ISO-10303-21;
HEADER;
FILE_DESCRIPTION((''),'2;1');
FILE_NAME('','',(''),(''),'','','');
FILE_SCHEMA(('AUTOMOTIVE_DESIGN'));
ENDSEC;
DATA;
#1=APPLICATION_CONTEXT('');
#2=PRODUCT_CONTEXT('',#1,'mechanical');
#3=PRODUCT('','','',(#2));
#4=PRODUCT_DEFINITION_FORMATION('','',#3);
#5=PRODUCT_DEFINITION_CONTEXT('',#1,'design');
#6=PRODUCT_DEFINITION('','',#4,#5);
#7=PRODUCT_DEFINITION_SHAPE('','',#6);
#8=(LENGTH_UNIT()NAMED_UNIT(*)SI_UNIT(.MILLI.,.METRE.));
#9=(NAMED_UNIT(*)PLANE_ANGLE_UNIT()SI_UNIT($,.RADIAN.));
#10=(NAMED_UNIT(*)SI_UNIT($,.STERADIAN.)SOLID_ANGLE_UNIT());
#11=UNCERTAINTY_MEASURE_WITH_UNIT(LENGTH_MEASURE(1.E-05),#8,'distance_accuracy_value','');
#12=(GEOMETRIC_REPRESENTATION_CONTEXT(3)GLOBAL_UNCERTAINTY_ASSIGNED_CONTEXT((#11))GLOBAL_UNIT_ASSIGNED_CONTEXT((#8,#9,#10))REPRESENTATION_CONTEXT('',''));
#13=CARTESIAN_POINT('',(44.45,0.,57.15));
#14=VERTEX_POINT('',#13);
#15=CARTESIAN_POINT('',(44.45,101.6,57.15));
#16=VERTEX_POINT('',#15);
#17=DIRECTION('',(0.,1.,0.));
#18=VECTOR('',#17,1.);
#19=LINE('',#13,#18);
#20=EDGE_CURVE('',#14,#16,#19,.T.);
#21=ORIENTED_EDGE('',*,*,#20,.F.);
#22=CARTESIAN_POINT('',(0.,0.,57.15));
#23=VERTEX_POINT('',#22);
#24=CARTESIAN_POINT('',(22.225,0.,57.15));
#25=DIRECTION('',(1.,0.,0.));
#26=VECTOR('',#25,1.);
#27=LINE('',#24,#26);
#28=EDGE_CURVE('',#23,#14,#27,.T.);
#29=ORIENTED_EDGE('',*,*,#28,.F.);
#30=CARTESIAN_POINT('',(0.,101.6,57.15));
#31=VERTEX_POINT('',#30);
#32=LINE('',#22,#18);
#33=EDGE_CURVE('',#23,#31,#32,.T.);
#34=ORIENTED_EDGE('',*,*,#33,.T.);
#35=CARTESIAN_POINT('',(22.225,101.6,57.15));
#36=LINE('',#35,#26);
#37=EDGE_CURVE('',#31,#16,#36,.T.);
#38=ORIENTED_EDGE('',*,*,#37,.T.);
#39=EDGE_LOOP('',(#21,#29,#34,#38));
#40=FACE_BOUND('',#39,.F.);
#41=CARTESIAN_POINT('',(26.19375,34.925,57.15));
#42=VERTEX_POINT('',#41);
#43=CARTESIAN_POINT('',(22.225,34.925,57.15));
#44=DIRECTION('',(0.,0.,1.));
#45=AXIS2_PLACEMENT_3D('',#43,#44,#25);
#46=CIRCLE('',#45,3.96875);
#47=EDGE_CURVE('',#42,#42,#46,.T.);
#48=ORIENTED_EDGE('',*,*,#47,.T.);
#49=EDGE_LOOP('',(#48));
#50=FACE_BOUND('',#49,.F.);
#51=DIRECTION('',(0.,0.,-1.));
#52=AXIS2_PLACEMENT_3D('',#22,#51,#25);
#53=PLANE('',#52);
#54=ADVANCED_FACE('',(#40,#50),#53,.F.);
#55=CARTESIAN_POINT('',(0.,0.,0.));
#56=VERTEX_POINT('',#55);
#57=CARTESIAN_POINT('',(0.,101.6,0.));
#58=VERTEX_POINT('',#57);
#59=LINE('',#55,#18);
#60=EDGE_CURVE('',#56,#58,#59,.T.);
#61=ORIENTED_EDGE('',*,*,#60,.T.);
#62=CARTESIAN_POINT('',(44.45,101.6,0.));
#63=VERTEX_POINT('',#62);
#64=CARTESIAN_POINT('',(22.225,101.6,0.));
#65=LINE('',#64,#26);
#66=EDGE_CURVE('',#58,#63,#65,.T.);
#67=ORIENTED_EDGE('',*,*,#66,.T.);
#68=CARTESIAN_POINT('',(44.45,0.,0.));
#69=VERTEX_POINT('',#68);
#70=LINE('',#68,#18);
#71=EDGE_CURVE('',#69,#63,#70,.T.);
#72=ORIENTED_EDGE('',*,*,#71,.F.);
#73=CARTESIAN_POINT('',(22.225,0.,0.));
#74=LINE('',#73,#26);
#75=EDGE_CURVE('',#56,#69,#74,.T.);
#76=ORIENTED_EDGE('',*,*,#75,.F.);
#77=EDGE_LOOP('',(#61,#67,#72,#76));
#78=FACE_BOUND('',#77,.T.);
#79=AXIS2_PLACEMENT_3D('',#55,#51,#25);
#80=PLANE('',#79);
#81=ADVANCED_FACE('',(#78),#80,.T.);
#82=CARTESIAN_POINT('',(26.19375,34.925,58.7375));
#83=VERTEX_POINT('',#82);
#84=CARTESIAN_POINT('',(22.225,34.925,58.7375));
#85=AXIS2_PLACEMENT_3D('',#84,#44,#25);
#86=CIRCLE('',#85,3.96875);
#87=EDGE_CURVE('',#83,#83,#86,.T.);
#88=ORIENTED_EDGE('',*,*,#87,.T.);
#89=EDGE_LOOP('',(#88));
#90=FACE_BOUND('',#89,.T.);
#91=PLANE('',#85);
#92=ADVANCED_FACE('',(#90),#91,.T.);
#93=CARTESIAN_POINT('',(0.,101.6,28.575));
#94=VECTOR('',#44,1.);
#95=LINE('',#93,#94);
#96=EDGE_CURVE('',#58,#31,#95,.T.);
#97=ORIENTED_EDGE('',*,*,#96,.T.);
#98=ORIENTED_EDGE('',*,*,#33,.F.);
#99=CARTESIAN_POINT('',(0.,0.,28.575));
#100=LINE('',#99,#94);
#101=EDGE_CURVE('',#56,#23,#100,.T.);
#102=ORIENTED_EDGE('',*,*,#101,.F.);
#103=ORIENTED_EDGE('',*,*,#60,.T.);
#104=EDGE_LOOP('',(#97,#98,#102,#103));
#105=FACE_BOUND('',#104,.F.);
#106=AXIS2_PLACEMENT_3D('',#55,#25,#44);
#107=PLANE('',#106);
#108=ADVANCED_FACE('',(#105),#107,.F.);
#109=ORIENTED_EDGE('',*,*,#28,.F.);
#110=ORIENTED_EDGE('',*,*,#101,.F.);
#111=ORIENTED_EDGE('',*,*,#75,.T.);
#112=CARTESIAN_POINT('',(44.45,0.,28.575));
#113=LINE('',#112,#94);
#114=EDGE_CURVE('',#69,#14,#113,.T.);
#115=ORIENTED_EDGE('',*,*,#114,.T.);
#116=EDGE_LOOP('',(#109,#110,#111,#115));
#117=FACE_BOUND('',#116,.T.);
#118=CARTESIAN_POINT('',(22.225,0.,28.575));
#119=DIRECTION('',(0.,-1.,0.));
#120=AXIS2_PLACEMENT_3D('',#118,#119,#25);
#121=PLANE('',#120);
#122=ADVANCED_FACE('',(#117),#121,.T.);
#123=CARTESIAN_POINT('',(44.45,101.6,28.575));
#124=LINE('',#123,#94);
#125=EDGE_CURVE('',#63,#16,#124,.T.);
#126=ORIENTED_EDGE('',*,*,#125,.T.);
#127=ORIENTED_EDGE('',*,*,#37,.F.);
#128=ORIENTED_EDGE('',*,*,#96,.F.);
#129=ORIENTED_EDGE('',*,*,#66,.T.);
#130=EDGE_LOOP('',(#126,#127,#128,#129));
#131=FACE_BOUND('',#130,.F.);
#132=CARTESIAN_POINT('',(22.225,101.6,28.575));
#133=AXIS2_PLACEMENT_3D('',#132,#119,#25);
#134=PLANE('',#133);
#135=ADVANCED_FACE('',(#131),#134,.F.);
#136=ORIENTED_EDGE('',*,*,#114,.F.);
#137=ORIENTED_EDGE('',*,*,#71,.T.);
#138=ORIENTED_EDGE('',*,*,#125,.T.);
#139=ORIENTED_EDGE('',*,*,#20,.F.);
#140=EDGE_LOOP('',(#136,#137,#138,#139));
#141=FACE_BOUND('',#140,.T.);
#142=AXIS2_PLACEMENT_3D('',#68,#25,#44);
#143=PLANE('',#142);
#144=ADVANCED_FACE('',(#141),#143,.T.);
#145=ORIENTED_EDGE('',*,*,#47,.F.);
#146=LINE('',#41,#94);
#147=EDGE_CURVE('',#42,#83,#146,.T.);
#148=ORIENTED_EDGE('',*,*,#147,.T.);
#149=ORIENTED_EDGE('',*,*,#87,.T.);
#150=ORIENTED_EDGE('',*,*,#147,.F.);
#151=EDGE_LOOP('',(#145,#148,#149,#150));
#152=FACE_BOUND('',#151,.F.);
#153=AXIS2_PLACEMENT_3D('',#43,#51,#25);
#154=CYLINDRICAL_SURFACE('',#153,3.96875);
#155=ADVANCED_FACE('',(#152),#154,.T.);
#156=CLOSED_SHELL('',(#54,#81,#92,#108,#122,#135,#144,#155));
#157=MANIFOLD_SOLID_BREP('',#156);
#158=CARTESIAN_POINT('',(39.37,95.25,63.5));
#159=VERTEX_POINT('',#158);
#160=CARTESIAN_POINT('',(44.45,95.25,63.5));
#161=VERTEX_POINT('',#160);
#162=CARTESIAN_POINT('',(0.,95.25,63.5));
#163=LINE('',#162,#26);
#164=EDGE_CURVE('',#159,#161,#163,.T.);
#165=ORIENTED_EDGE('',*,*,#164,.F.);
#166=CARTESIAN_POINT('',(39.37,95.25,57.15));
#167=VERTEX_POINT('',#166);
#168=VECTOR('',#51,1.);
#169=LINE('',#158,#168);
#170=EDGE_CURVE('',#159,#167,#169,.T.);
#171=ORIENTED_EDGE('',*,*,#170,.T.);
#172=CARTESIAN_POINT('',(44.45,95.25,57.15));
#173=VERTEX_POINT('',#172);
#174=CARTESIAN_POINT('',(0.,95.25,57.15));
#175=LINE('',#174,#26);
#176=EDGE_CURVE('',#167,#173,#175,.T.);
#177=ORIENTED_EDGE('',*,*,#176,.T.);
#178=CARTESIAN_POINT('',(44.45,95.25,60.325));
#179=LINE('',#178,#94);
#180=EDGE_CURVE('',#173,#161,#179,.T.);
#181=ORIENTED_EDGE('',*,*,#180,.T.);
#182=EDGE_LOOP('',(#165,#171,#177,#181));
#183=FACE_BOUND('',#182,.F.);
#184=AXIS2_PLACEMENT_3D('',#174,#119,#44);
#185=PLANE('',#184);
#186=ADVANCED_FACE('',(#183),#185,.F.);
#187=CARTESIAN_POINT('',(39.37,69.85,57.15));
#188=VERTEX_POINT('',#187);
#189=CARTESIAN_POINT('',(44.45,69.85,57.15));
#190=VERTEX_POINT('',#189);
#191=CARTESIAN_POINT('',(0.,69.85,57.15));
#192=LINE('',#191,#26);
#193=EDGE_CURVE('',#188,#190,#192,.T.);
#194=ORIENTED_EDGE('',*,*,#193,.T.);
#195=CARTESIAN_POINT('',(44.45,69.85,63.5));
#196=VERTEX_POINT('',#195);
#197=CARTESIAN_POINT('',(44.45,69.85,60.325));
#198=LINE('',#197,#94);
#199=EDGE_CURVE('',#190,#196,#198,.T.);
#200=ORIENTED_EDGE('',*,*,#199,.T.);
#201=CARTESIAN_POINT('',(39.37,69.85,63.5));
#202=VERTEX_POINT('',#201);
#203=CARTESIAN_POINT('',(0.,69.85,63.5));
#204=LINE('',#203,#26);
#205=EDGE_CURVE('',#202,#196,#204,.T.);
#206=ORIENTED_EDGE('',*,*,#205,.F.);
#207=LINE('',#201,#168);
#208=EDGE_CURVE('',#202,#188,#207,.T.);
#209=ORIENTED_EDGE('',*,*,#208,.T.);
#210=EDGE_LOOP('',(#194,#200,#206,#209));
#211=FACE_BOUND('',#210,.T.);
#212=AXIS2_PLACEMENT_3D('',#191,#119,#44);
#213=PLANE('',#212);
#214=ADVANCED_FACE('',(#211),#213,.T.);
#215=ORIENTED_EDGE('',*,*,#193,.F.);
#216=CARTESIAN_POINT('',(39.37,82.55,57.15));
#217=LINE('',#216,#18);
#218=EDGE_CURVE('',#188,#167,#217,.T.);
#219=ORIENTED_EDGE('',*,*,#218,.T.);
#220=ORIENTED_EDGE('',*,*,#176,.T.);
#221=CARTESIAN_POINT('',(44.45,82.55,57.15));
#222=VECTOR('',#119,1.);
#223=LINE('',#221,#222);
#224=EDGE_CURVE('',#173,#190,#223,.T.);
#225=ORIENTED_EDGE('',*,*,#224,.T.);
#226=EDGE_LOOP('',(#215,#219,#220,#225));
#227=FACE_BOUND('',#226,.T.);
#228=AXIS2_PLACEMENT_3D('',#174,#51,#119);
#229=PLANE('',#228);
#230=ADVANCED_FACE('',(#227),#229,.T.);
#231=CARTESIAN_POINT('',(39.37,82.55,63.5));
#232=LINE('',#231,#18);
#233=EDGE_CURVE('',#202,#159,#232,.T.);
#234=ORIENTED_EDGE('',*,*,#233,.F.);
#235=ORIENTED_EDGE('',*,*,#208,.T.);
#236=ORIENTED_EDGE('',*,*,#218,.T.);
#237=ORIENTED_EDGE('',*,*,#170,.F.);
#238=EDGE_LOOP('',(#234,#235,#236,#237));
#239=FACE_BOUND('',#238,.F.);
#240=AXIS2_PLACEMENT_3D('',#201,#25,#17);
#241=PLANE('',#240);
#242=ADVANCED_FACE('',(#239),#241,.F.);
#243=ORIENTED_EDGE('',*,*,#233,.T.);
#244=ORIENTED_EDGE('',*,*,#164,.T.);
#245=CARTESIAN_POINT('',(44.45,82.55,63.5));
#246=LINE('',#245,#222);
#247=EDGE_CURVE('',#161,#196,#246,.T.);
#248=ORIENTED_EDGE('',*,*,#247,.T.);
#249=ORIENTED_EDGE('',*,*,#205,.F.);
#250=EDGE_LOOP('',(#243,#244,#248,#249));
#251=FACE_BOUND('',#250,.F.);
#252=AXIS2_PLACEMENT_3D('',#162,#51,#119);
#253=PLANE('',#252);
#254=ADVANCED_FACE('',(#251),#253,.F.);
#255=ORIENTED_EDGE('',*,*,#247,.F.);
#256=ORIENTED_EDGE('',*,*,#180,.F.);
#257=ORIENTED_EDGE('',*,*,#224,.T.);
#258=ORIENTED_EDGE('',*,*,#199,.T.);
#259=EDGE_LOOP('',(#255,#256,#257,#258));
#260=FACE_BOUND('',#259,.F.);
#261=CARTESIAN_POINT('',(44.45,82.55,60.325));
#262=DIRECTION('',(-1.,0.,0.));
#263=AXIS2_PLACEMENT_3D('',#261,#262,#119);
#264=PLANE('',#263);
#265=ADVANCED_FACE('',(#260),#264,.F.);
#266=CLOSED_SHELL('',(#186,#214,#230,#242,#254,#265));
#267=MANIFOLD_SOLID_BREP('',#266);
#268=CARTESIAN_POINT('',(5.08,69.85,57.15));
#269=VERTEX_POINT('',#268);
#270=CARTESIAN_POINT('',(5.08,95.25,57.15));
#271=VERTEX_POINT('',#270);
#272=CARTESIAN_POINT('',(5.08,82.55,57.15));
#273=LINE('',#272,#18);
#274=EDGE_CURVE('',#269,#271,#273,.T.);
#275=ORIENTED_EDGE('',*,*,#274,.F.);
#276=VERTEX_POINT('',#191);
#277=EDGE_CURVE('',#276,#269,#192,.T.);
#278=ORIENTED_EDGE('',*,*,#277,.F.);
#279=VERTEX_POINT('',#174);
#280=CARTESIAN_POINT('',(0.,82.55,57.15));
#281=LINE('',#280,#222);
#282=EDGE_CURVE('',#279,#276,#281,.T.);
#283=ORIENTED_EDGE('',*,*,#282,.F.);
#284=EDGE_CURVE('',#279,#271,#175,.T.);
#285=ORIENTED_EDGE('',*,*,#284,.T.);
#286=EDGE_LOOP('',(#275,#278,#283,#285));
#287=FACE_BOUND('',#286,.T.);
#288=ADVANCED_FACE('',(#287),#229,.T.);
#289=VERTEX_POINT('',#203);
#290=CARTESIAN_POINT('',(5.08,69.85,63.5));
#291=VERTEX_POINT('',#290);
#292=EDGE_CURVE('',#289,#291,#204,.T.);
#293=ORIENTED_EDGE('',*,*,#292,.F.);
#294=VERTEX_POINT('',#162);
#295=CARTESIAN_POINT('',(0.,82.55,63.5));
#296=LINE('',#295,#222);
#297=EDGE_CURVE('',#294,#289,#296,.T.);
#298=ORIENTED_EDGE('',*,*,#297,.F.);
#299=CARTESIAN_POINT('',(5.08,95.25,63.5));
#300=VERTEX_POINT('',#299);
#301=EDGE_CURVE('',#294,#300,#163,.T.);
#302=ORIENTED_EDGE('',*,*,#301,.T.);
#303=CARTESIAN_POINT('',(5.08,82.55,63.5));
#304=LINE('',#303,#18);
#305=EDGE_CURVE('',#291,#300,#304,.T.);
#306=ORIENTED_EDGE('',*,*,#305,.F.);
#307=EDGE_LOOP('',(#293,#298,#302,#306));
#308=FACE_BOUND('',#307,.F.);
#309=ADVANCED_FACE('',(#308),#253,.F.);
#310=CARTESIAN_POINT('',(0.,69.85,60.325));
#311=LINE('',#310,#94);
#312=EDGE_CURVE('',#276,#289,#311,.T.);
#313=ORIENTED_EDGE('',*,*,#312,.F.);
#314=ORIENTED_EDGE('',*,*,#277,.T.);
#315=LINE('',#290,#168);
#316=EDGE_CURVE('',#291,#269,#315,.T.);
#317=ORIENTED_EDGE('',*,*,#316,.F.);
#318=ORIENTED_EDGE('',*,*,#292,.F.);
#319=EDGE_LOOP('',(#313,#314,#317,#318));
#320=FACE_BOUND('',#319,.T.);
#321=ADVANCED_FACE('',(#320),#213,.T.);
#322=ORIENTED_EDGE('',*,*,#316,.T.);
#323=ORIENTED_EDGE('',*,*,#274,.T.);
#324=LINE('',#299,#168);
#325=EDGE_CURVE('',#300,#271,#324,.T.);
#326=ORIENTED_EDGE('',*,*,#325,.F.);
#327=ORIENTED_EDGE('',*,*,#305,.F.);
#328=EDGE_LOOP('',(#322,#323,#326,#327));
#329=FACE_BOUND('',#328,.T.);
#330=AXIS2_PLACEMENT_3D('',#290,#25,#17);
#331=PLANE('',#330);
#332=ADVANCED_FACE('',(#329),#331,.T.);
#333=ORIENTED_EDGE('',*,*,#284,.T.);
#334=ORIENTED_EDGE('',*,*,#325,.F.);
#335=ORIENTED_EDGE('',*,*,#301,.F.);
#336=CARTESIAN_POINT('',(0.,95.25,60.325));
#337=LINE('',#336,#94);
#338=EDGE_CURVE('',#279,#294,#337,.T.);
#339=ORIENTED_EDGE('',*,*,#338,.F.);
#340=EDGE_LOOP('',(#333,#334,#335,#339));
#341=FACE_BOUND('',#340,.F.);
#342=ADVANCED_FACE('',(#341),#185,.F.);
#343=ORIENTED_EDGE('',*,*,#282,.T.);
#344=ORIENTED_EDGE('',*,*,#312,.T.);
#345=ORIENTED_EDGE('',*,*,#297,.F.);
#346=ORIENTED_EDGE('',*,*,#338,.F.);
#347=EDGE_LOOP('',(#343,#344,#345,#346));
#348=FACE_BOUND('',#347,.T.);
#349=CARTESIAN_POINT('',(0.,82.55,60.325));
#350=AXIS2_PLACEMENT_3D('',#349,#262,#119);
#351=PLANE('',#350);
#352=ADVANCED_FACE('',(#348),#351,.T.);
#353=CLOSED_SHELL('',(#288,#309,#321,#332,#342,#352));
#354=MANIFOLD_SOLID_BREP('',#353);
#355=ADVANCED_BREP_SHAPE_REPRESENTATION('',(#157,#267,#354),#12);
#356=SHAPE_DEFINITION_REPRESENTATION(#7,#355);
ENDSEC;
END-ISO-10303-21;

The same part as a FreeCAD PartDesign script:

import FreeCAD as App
import Part
import Sketcher
from FreeCAD import Vector
Q = App.Units.Quantity

doc = App.newDocument("Part")
params = doc.addObject("Spreadsheet::Sheet", "Params")
for row, (alias, value) in enumerate([
    ("sketch1_width", "1.75 in"),
    ("sketch1_height", "2.25 in"),
    ("pad1_length", "4 in"),
    ("sketch2_diameter", "0.3125 in"),
    ("pad2_length", "0.0625 in"),
    ("sketch3_height", "1 in"),
    ("sketch3_width", "1.35 in"),
    ("pocket1_length", "0.25 in"),
    ("sketch4_width", "1 in"),
    ("sketch4_height", "0.25 in"),
    ("pad3_length", "1.75 in"),
    ("sketch5_height", "1 in"),
    ("sketch5_width", "1.35 in"),
    ("pocket2_length", "0.25 in"),
], start=1):
    params.set(f"A{row}", alias)
    params.set(f"B{row}", "=" + value)
    params.setAlias(f"B{row}", alias)

body = doc.addObject("PartDesign::Body", "Body")

# Sketch on XZ plane
sketch1 = body.newObject("Sketcher::SketchObject", "Sketch")
sketch1.AttachmentSupport = (doc.getObject("XZ_Plane"), [""])
sketch1.MapMode = "FlatFace"
sketch1.addGeometry(Part.LineSegment(Vector(0, 57, 0), Vector(0, 0, 0)), False)
sketch1.addGeometry(Part.LineSegment(Vector(0, 0, 0), Vector(44, 0, 0)), False)
sketch1.addGeometry(Part.LineSegment(Vector(44, 0, 0), Vector(44, 57, 0)), False)
sketch1.addGeometry(Part.LineSegment(Vector(44, 57, 0), Vector(0, 57, 0)), False)
sketch1.addConstraint(Sketcher.Constraint("Coincident", 0, 2, 1, 1))
sketch1.addConstraint(Sketcher.Constraint("Coincident", 1, 2, 2, 1))
sketch1.addConstraint(Sketcher.Constraint("Coincident", 2, 2, 3, 1))
sketch1.addConstraint(Sketcher.Constraint("Coincident", 3, 2, 0, 1))
sketch1.addConstraint(Sketcher.Constraint("Vertical", 0))
sketch1.addConstraint(Sketcher.Constraint("Horizontal", 1))
sketch1.addConstraint(Sketcher.Constraint("Vertical", 2))
sketch1.addConstraint(Sketcher.Constraint("Horizontal", 3))
sketch1.addConstraint(Sketcher.Constraint("Coincident", 0, 2, -1, 1))
sketch1.addConstraint(Sketcher.Constraint("DistanceX", 1, 1, 1, 2, Q("1.75 in")))
sketch1.addConstraint(Sketcher.Constraint("DistanceY", 0, 2, 0, 1, Q("2.25 in")))
sketch1.setExpression("Constraints[9]", "Params.sketch1_width")
sketch1.setExpression("Constraints[10]", "Params.sketch1_height")
pad1 = body.newObject("PartDesign::Pad", "Pad")
pad1.Profile = sketch1
pad1.setExpression("Length", "Params.pad1_length")
pad1.Reversed = True

# Sketch on XY plane
sketch2 = body.newObject("Sketcher::SketchObject", "Sketch001")
sketch2.AttachmentSupport = (doc.getObject("XY_Plane"), [""])
sketch2.MapMode = "FlatFace"
sketch2.AttachmentOffset = App.Placement(Vector(0, 0, 2.25 * 25.4), App.Rotation())
sketch2.addGeometry(Part.Circle(Vector(22.2, 34.9, 0), Vector(0, 0, 1), 4), False)
sketch2.addConstraint(Sketcher.Constraint("Diameter", 0, Q("0.3125 in")))
sketch2.addConstraint(Sketcher.Constraint("DistanceX", -1, 1, 0, 3, Q("0.875 in")))
sketch2.addConstraint(Sketcher.Constraint("DistanceY", -1, 1, 0, 3, Q("1.375 in")))
sketch2.setExpression("Constraints[0]", "Params.sketch2_diameter")
pad2 = body.newObject("PartDesign::Pad", "Pad001")
pad2.Profile = sketch2
pad2.setExpression("Length", "Params.pad2_length")

# Sketch on XY plane
sketch3 = body.newObject("Sketcher::SketchObject", "Sketch002")
sketch3.AttachmentSupport = (doc.getObject("XY_Plane"), [""])
sketch3.MapMode = "FlatFace"
sketch3.AttachmentOffset = App.Placement(Vector(0, 0, 2.5 * 25.4), App.Rotation())
sketch3.addGeometry(Part.LineSegment(Vector(5, 95, 0), Vector(5, 70, 0)), False)
sketch3.addGeometry(Part.LineSegment(Vector(5, 70, 0), Vector(39, 70, 0)), False)
sketch3.addGeometry(Part.LineSegment(Vector(39, 70, 0), Vector(39, 95, 0)), False)
sketch3.addGeometry(Part.LineSegment(Vector(39, 95, 0), Vector(5, 95, 0)), False)
sketch3.addConstraint(Sketcher.Constraint("Coincident", 0, 2, 1, 1))
sketch3.addConstraint(Sketcher.Constraint("Coincident", 1, 2, 2, 1))
sketch3.addConstraint(Sketcher.Constraint("Coincident", 2, 2, 3, 1))
sketch3.addConstraint(Sketcher.Constraint("Coincident", 3, 2, 0, 1))
sketch3.addConstraint(Sketcher.Constraint("Vertical", 0))
sketch3.addConstraint(Sketcher.Constraint("Horizontal", 1))
sketch3.addConstraint(Sketcher.Constraint("Vertical", 2))
sketch3.addConstraint(Sketcher.Constraint("Horizontal", 3))
sketch3.addConstraint(Sketcher.Constraint("DistanceY", 0, 2, 0, 1, Q("1 in")))
sketch3.addConstraint(Sketcher.Constraint("DistanceX", 1, 1, 1, 2, Q("1.35 in")))
sketch3.addConstraint(Sketcher.Constraint("DistanceX", -1, 1, 0, 2, Q("0.2 in")))
sketch3.addConstraint(Sketcher.Constraint("DistanceY", -1, 1, 0, 2, Q("2.75 in")))
sketch3.setExpression("Constraints[8]", "Params.sketch3_height")
sketch3.setExpression("Constraints[9]", "Params.sketch3_width")
pocket1 = body.newObject("PartDesign::Pocket", "Pocket")
pocket1.Profile = sketch3
pocket1.setExpression("Length", "Params.pocket1_length")
body2 = doc.addObject("PartDesign::Body", "Body001")
body2.AllowCompound = True

# Sketch on YZ plane
sketch4 = body2.newObject("Sketcher::SketchObject", "Sketch003")
sketch4.AttachmentSupport = (doc.getObject("YZ_Plane001"), [""])
sketch4.MapMode = "FlatFace"
sketch4.addGeometry(Part.LineSegment(Vector(95, 64, 0), Vector(95, 57, 0)), False)
sketch4.addGeometry(Part.LineSegment(Vector(95, 57, 0), Vector(70, 57, 0)), False)
sketch4.addGeometry(Part.LineSegment(Vector(70, 57, 0), Vector(70, 64, 0)), False)
sketch4.addGeometry(Part.LineSegment(Vector(70, 64, 0), Vector(95, 64, 0)), False)
sketch4.addConstraint(Sketcher.Constraint("Coincident", 0, 2, 1, 1))
sketch4.addConstraint(Sketcher.Constraint("Coincident", 1, 2, 2, 1))
sketch4.addConstraint(Sketcher.Constraint("Coincident", 2, 2, 3, 1))
sketch4.addConstraint(Sketcher.Constraint("Coincident", 3, 2, 0, 1))
sketch4.addConstraint(Sketcher.Constraint("Vertical", 0))
sketch4.addConstraint(Sketcher.Constraint("Horizontal", 1))
sketch4.addConstraint(Sketcher.Constraint("Vertical", 2))
sketch4.addConstraint(Sketcher.Constraint("Horizontal", 3))
sketch4.addConstraint(Sketcher.Constraint("DistanceX", 1, 2, 1, 1, Q("1 in")))
sketch4.addConstraint(Sketcher.Constraint("DistanceY", 0, 2, 0, 1, Q("0.25 in")))
sketch4.addConstraint(Sketcher.Constraint("DistanceY", -1, 1, 2, 2, Q("2.5 in")))
sketch4.addConstraint(Sketcher.Constraint("DistanceX", -1, 1, 0, 2, Q("3.75 in")))
sketch4.setExpression("Constraints[8]", "Params.sketch4_width")
sketch4.setExpression("Constraints[9]", "Params.sketch4_height")
pad3 = body2.newObject("PartDesign::Pad", "Pad002")
pad3.Profile = sketch4
pad3.setExpression("Length", "Params.pad3_length")

# Sketch on XY plane
sketch5 = body2.newObject("Sketcher::SketchObject", "Sketch004")
sketch5.AttachmentSupport = (doc.getObject("XY_Plane001"), [""])
sketch5.MapMode = "FlatFace"
sketch5.AttachmentOffset = App.Placement(Vector(0, 0, 2.5 * 25.4), App.Rotation())
sketch5.addGeometry(Part.LineSegment(Vector(5, 95, 0), Vector(5, 70, 0)), False)
sketch5.addGeometry(Part.LineSegment(Vector(5, 70, 0), Vector(39, 70, 0)), False)
sketch5.addGeometry(Part.LineSegment(Vector(39, 70, 0), Vector(39, 95, 0)), False)
sketch5.addGeometry(Part.LineSegment(Vector(39, 95, 0), Vector(5, 95, 0)), False)
sketch5.addConstraint(Sketcher.Constraint("Coincident", 0, 2, 1, 1))
sketch5.addConstraint(Sketcher.Constraint("Coincident", 1, 2, 2, 1))
sketch5.addConstraint(Sketcher.Constraint("Coincident", 2, 2, 3, 1))
sketch5.addConstraint(Sketcher.Constraint("Coincident", 3, 2, 0, 1))
sketch5.addConstraint(Sketcher.Constraint("Vertical", 0))
sketch5.addConstraint(Sketcher.Constraint("Horizontal", 1))
sketch5.addConstraint(Sketcher.Constraint("Vertical", 2))
sketch5.addConstraint(Sketcher.Constraint("Horizontal", 3))
sketch5.addConstraint(Sketcher.Constraint("DistanceY", 0, 2, 0, 1, Q("1 in")))
sketch5.addConstraint(Sketcher.Constraint("DistanceX", 1, 1, 1, 2, Q("1.35 in")))
sketch5.addConstraint(Sketcher.Constraint("DistanceX", -1, 1, 0, 2, Q("0.2 in")))
sketch5.addConstraint(Sketcher.Constraint("DistanceY", -1, 1, 0, 2, Q("2.75 in")))
sketch5.setExpression("Constraints[8]", "Params.sketch5_height")
sketch5.setExpression("Constraints[9]", "Params.sketch5_width")
pocket2 = body2.newObject("PartDesign::Pocket", "Pocket001")
pocket2.Profile = sketch5
pocket2.setExpression("Length", "Params.pocket2_length")

doc.recompute()
